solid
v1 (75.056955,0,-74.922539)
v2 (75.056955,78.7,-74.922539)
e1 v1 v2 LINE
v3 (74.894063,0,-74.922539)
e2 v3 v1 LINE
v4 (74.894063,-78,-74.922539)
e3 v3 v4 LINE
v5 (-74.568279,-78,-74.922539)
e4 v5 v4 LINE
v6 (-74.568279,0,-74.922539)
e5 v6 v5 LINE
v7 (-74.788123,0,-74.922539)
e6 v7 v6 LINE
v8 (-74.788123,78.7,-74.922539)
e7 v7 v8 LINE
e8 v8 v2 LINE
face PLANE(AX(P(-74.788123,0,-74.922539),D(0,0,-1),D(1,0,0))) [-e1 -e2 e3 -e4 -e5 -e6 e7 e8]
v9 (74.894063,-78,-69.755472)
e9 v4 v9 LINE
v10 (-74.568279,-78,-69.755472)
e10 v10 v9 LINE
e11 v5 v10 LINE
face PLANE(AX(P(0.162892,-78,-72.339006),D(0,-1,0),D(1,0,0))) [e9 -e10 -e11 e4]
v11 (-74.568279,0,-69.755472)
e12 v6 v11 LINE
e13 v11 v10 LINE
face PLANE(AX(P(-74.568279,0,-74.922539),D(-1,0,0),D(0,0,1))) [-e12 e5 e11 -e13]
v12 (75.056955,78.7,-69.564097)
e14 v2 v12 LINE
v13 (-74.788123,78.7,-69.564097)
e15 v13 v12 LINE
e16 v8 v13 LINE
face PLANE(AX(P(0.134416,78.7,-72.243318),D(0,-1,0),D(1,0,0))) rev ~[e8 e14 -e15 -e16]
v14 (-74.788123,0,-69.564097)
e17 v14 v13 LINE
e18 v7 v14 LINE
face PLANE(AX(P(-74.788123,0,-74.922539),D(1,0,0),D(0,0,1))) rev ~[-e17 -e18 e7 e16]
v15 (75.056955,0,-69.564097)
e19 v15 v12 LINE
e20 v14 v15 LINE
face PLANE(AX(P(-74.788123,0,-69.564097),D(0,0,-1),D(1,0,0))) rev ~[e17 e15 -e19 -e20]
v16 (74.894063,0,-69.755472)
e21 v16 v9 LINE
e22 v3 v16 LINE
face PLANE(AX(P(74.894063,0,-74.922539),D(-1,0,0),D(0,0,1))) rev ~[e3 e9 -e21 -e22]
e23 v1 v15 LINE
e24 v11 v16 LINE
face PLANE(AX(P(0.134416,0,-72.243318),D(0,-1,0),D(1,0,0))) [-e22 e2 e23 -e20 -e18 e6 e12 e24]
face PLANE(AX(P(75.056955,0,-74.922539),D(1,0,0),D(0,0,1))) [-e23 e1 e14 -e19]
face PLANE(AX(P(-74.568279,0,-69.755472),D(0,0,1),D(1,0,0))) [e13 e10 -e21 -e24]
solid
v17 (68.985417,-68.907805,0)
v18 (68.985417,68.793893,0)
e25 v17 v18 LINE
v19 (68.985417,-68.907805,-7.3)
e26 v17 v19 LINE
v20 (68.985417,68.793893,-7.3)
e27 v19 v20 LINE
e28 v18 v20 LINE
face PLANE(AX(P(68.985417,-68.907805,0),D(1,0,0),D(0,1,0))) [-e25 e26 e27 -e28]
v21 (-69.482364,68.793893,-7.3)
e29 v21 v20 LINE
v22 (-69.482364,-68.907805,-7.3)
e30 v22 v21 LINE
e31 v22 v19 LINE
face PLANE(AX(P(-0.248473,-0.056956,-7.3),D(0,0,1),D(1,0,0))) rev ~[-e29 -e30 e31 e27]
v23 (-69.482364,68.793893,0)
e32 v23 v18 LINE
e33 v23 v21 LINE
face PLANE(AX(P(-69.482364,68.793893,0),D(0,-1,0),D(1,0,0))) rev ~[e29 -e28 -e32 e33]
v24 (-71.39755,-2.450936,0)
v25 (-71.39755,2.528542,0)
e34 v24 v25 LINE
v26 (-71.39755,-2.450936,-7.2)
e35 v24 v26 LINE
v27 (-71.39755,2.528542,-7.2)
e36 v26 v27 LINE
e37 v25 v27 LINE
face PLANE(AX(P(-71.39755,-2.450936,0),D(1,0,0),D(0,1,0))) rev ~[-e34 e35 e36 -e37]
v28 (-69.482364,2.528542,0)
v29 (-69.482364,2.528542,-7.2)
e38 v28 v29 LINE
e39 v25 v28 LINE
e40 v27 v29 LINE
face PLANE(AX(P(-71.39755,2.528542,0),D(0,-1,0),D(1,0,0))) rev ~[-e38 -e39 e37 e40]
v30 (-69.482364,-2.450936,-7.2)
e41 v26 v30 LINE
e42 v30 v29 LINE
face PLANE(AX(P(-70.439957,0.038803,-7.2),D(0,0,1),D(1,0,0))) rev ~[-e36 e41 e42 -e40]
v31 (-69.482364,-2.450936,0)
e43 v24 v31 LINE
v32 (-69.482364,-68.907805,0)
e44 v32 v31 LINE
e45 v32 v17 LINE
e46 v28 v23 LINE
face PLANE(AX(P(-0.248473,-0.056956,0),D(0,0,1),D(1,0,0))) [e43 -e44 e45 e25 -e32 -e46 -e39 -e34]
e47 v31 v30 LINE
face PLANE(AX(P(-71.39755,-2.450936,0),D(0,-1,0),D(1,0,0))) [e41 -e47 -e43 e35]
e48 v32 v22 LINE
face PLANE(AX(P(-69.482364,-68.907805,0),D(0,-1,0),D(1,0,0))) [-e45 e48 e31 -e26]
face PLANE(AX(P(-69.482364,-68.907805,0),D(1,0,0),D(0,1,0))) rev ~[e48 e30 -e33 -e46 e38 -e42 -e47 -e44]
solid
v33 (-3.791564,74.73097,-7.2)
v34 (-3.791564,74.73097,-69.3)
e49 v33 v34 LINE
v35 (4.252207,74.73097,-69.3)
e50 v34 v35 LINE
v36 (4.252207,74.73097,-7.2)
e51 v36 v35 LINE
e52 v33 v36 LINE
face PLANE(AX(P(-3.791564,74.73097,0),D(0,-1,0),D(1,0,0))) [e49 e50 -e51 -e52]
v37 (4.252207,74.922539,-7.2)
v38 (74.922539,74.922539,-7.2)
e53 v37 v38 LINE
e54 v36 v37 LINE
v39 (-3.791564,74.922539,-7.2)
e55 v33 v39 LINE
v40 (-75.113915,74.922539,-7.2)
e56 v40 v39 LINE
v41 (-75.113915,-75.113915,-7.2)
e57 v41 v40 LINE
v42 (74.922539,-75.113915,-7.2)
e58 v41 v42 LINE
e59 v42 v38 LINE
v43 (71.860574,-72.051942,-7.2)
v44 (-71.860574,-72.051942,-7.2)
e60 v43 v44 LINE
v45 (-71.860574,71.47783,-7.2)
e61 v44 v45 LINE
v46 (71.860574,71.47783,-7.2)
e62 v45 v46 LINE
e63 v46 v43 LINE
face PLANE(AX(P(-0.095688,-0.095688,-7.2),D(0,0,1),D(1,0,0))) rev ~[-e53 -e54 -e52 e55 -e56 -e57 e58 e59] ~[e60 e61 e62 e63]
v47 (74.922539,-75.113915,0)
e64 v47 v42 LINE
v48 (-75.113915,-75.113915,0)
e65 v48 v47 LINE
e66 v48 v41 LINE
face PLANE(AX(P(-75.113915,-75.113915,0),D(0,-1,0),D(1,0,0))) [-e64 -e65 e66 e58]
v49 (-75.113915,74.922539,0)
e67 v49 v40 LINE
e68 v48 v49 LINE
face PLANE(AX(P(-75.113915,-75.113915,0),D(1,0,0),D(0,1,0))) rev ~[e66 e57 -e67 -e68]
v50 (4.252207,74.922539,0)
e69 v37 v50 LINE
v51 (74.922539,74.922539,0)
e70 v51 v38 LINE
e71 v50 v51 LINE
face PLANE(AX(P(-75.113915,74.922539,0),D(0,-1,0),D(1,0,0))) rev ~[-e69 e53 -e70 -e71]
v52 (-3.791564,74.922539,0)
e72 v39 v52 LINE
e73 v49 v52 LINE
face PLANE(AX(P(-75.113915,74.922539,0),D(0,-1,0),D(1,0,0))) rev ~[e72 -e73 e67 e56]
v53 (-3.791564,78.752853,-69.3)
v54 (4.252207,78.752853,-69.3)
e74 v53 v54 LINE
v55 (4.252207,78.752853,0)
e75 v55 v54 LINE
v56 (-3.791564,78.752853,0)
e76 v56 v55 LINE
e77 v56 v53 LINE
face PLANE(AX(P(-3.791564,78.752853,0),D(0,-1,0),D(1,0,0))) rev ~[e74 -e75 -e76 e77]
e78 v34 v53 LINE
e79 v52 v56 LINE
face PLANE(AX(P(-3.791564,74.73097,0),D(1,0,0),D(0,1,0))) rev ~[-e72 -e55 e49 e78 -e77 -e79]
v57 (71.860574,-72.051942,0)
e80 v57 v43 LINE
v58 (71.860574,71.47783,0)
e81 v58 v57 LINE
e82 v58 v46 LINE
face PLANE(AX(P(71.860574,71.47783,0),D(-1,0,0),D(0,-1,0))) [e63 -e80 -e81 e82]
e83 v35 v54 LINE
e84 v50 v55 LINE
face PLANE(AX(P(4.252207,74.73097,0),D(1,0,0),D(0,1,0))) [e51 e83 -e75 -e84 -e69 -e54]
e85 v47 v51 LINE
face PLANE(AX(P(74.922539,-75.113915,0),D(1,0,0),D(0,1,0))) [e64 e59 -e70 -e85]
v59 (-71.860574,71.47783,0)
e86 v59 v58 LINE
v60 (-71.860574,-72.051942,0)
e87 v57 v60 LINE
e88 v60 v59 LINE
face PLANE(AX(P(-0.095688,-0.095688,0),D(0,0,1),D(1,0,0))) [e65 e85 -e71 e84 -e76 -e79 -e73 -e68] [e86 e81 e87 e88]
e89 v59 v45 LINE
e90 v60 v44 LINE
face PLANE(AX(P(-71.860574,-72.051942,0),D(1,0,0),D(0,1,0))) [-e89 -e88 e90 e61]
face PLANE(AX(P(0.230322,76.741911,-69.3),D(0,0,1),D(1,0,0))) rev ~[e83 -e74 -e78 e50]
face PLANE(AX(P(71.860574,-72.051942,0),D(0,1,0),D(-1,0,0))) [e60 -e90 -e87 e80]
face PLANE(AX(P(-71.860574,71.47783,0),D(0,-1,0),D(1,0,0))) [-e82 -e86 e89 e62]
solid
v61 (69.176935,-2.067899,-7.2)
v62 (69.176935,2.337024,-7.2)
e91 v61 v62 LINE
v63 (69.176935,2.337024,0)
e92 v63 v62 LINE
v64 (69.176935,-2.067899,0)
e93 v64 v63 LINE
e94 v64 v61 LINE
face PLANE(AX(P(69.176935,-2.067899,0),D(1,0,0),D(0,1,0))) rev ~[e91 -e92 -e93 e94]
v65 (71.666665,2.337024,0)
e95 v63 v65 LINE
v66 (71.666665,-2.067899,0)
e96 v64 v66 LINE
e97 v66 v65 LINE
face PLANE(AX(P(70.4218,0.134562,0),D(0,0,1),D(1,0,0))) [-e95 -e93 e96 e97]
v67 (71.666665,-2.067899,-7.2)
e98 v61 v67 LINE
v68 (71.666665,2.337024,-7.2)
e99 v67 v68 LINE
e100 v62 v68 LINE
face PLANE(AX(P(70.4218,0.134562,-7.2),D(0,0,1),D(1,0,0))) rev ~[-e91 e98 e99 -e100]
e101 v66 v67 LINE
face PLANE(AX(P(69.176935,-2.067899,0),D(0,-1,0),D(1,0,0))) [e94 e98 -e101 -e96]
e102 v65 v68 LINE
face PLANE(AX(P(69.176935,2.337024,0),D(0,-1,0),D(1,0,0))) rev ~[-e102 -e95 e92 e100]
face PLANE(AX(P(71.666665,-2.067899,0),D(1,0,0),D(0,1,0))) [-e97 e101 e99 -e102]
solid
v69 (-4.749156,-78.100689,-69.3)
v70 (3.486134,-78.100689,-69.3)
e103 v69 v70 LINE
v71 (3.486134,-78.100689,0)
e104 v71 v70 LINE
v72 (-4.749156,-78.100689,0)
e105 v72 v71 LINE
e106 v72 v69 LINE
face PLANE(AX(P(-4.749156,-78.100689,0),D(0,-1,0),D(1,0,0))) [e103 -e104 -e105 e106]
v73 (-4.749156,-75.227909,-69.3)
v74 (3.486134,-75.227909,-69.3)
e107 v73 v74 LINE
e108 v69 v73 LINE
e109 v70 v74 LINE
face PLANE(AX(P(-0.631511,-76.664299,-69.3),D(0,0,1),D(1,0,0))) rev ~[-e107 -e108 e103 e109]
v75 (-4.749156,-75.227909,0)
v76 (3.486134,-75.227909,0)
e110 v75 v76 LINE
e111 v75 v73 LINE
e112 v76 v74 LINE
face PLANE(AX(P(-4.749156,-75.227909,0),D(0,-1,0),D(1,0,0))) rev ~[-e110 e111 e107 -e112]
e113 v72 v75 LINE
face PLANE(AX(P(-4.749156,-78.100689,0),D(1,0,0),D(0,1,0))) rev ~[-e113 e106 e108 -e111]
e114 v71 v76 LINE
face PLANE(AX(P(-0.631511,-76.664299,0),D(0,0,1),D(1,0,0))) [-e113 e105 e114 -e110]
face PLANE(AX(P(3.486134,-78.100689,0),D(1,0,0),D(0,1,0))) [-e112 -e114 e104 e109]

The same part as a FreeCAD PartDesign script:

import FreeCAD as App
import Part
import Sketcher
from FreeCAD import Vector
Q = App.Units.Quantity

doc = App.newDocument("Part")
body = doc.addObject("PartDesign::Body", "Body")

sketch1 = body.newObject("Sketcher::SketchObject", "Sketch")
sketch1.AttachmentSupport = (doc.getObject("XY_Plane"), [""])
sketch1.MapMode = "FlatFace"
sketch1.addGeometry(Part.LineSegment(Vector(-75, 75, 0), Vector(-75, -75, 0)), False)
sketch1.addGeometry(Part.LineSegment(Vector(-75, -75, 0), Vector(75, -75, 0)), False)
sketch1.addGeometry(Part.LineSegment(Vector(75, -75, 0), Vector(75, 75, 0)), False)
sketch1.addGeometry(Part.LineSegment(Vector(75, 75, 0), Vector(-75, 75, 0)), False)
sketch1.addGeometry(Part.LineSegment(Vector(72, -72, 0), Vector(-72, -72, 0)), False)
sketch1.addGeometry(Part.LineSegment(Vector(-72, -72, 0), Vector(-72, 71, 0)), False)
sketch1.addGeometry(Part.LineSegment(Vector(-72, 71, 0), Vector(72, 71, 0)), False)
sketch1.addGeometry(Part.LineSegment(Vector(72, 71, 0), Vector(72, -72, 0)), False)
sketch1.addConstraint(Sketcher.Constraint("Coincident", 0, 2, 1, 1))
sketch1.addConstraint(Sketcher.Constraint("Coincident", 1, 2, 2, 1))
sketch1.addConstraint(Sketcher.Constraint("Coincident", 2, 2, 3, 1))
sketch1.addConstraint(Sketcher.Constraint("Coincident", 3, 2, 0, 1))
sketch1.addConstraint(Sketcher.Constraint("Coincident", 4, 2, 5, 1))
sketch1.addConstraint(Sketcher.Constraint("Coincident", 5, 2, 6, 1))
sketch1.addConstraint(Sketcher.Constraint("Coincident", 6, 2, 7, 1))
sketch1.addConstraint(Sketcher.Constraint("Coincident", 7, 2, 4, 1))
sketch1.addConstraint(Sketcher.Constraint("Vertical", 0))
sketch1.addConstraint(Sketcher.Constraint("Horizontal", 1))
sketch1.addConstraint(Sketcher.Constraint("Vertical", 2))
sketch1.addConstraint(Sketcher.Constraint("Horizontal", 3))
sketch1.addConstraint(Sketcher.Constraint("Horizontal", 4))
sketch1.addConstraint(Sketcher.Constraint("Vertical", 5))
sketch1.addConstraint(Sketcher.Constraint("Horizontal", 6))
sketch1.addConstraint(Sketcher.Constraint("Vertical", 7))
sketch1.addConstraint(Sketcher.Constraint("Equal", 3, 0))
sketch1.addConstraint(Sketcher.Constraint("DistanceX", 4, 2, 4, 1, Q("143.721148 mm")))
sketch1.addConstraint(Sketcher.Constraint("DistanceX", 1, 1, 1, 2, Q("150.036454 mm")))
sketch1.addConstraint(Sketcher.Constraint("DistanceY", 5, 1, 5, 2, Q("143.529773 mm")))
sketch1.addConstraint(Sketcher.Constraint("DistanceX", -1, 1, 1, 2, Q("74.922539 mm")))
sketch1.addConstraint(Sketcher.Constraint("DistanceY", -1, 1, 2, 2, Q("74.922539 mm")))
sketch1.addConstraint(Sketcher.Constraint("DistanceY", -1, 1, 5, 2, Q("71.47783 mm")))
sketch1.addConstraint(Sketcher.Constraint("DistanceX", 0, 2, 4, 2, Q("3.253341 mm")))
pad1 = body.newObject("PartDesign::Pad", "Pad")
pad1.Profile = sketch1
pad1.Length = 7.2
pad1.Reversed = True

sketch2 = body.newObject("Sketcher::SketchObject", "Sketch001")
sketch2.AttachmentSupport = (doc.getObject("XY_Plane"), [""])
sketch2.MapMode = "FlatFace"
sketch2.addGeometry(Part.LineSegment(Vector(-3.8, 78.8, 0), Vector(-3.8, 74.7, 0)), False)
sketch2.addGeometry(Part.LineSegment(Vector(-3.8, 74.7, 0), Vector(4.3, 74.7, 0)), False)
sketch2.addGeometry(Part.LineSegment(Vector(4.3, 74.7, 0), Vector(4.3, 78.8, 0)), False)
sketch2.addGeometry(Part.LineSegment(Vector(4.3, 78.8, 0), Vector(-3.8, 78.8, 0)), False)
sketch2.addConstraint(Sketcher.Constraint("Coincident", 0, 2, 1, 1))
sketch2.addConstraint(Sketcher.Constraint("Coincident", 1, 2, 2, 1))
sketch2.addConstraint(Sketcher.Constraint("Coincident", 2, 2, 3, 1))
sketch2.addConstraint(Sketcher.Constraint("Coincident", 3, 2, 0, 1))
sketch2.addConstraint(Sketcher.Constraint("Vertical", 0))
sketch2.addConstraint(Sketcher.Constraint("Horizontal", 1))
sketch2.addConstraint(Sketcher.Constraint("Vertical", 2))
sketch2.addConstraint(Sketcher.Constraint("Horizontal", 3))
sketch2.addConstraint(Sketcher.Constraint("DistanceX", 1, 1, 1, 2, Q("8.043771 mm")))
sketch2.addConstraint(Sketcher.Constraint("DistanceY", 0, 2, 0, 1, Q("4.021883 mm")))
sketch2.addConstraint(Sketcher.Constraint("DistanceY", -1, 1, 0, 2, Q("74.73097 mm")))
sketch2.addConstraint(Sketcher.Constraint("DistanceX", 0, 2, -1, 1, Q("3.791564 mm")))
pad2 = body.newObject("PartDesign::Pad", "Pad001")
pad2.Profile = sketch2
pad2.Length = 69.3
pad2.Reversed = True
body2 = doc.addObject("PartDesign::Body", "Body001")

sketch3 = body2.newObject("Sketcher::SketchObject", "Sketch002")
sketch3.AttachmentSupport = (doc.getObject("XY_Plane001"), [""])
sketch3.MapMode = "FlatFace"
sketch3.addGeometry(Part.LineSegment(Vector(-69, 69, 0), Vector(-69, -69, 0)), False)
sketch3.addGeometry(Part.LineSegment(Vector(-69, -69, 0), Vector(69, -69, 0)), False)
sketch3.addGeometry(Part.LineSegment(Vector(69, -69, 0), Vector(69, 69, 0)), False)
sketch3.addGeometry(Part.LineSegment(Vector(69, 69, 0), Vector(-69, 69, 0)), False)
sketch3.addConstraint(Sketcher.Constraint("Coincident", 0, 2, 1, 1))
sketch3.addConstraint(Sketcher.Constraint("Coincident", 1, 2, 2, 1))
sketch3.addConstraint(Sketcher.Constraint("Coincident", 2, 2, 3, 1))
sketch3.addConstraint(Sketcher.Constraint("Coincident", 3, 2, 0, 1))
sketch3.addConstraint(Sketcher.Constraint("Vertical", 0))
sketch3.addConstraint(Sketcher.Constraint("Horizontal", 1))
sketch3.addConstraint(Sketcher.Constraint("Vertical", 2))
sketch3.addConstraint(Sketcher.Constraint("Horizontal", 3))
sketch3.addConstraint(Sketcher.Constraint("DistanceX", 1, 1, 1, 2, Q("138.467781 mm")))
sketch3.addConstraint(Sketcher.Constraint("DistanceY", 0, 2, 0, 1, Q("137.701698 mm")))
sketch3.addConstraint(Sketcher.Constraint("DistanceX", 0, 2, -1, 1, Q("69.482364 mm")))
sketch3.addConstraint(Sketcher.Constraint("DistanceY", 0, 2, -1, 1, Q("68.907805 mm")))
pad3 = body2.newObject("PartDesign::Pad", "Pad002")
pad3.Profile = sketch3
pad3.Length = 7.3
pad3.Reversed = True

sketch4 = body2.newObject("Sketcher::SketchObject", "Sketch003")
sketch4.AttachmentSupport = (doc.getObject("XY_Plane001"), [""])
sketch4.MapMode = "FlatFace"
sketch4.addGeometry(Part.LineSegment(Vector(-71.4, 2.5, 0), Vector(-71.4, -2.5, 0)), False)
sketch4.addGeometry(Part.LineSegment(Vector(-71.4, -2.5, 0), Vector(-69.5, -2.5, 0)), False)
sketch4.addGeometry(Part.LineSegment(Vector(-69.5, -2.5, 0), Vector(-69.5, 2.5, 0)), False)
sketch4.addGeometry(Part.LineSegment(Vector(-69.5, 2.5, 0), Vector(-71.4, 2.5, 0)), False)
sketch4.addConstraint(Sketcher.Constraint("Coincident", 0, 2, 1, 1))
sketch4.addConstraint(Sketcher.Constraint("Coincident", 1, 2, 2, 1))
sketch4.addConstraint(Sketcher.Constraint("Coincident", 2, 2, 3, 1))
sketch4.addConstraint(Sketcher.Constraint("Coincident", 3, 2, 0, 1))
sketch4.addConstraint(Sketcher.Constraint("Vertical", 0))
sketch4.addConstraint(Sketcher.Constraint("Horizontal", 1))
sketch4.addConstraint(Sketcher.Constraint("Vertical", 2))
sketch4.addConstraint(Sketcher.Constraint("Horizontal", 3))
sketch4.addConstraint(Sketcher.Constraint("DistanceX", 1, 1, 1, 2, Q("1.915187 mm")))
sketch4.addConstraint(Sketcher.Constraint("DistanceY", 0, 2, 0, 1, Q("4.979477 mm")))
sketch4.addConstraint(Sketcher.Constraint("DistanceX", 0, 2, -1, 1, Q("71.39755 mm")))
sketch4.addConstraint(Sketcher.Constraint("DistanceY", -1, 1, 2, 2, Q("2.528542 mm")))
pad4 = body2.newObject("PartDesign::Pad", "Pad003")
pad4.Profile = sketch4
pad4.Length = 7.2
pad4.Reversed = True
body3 = doc.addObject("PartDesign::Body", "Body002")

sketch5 = body3.newObject("Sketcher::SketchObject", "Sketch004")
sketch5.AttachmentSupport = (doc.getObject("XY_Plane002"), [""])
sketch5.MapMode = "FlatFace"
sketch5.addGeometry(Part.LineSegment(Vector(69.2, 2.3, 0), Vector(69.2, -2.1, 0)), False)
sketch5.addGeometry(Part.LineSegment(Vector(69.2, -2.1, 0), Vector(71.7, -2.1, 0)), False)
sketch5.addGeometry(Part.LineSegment(Vector(71.7, -2.1, 0), Vector(71.7, 2.3, 0)), False)
sketch5.addGeometry(Part.LineSegment(Vector(71.7, 2.3, 0), Vector(69.2, 2.3, 0)), False)
sketch5.addConstraint(Sketcher.Constraint("Coincident", 0, 2, 1, 1))
sketch5.addConstraint(Sketcher.Constraint("Coincident", 1, 2, 2, 1))
sketch5.addConstraint(Sketcher.Constraint("Coincident", 2, 2, 3, 1))
sketch5.addConstraint(Sketcher.Constraint("Coincident", 3, 2, 0, 1))
sketch5.addConstraint(Sketcher.Constraint("Vertical", 0))
sketch5.addConstraint(Sketcher.Constraint("Horizontal", 1))
sketch5.addConstraint(Sketcher.Constraint("Vertical", 2))
sketch5.addConstraint(Sketcher.Constraint("Horizontal", 3))
sketch5.addConstraint(Sketcher.Constraint("DistanceX", 1, 1, 1, 2, Q("2.489731 mm")))
sketch5.addConstraint(Sketcher.Constraint("DistanceY", 0, 2, -1, 1, Q("2.067899 mm")))
sketch5.addConstraint(Sketcher.Constraint("DistanceY", 0, 2, 0, 1, Q("4.404922 mm")))
sketch5.addConstraint(Sketcher.Constraint("DistanceX", -1, 1, 0, 2, Q("69.176935 mm")))
pad5 = body3.newObject("PartDesign::Pad", "Pad004")
pad5.Profile = sketch5
pad5.Length = 7.2
pad5.Reversed = True
body4 = doc.addObject("PartDesign::Body", "Body003")

sketch6 = body4.newObject("Sketcher::SketchObject", "Sketch005")
sketch6.AttachmentSupport = (doc.getObject("XY_Plane003"), [""])
sketch6.MapMode = "FlatFace"
sketch6.addGeometry(Part.LineSegment(Vector(-4.7, -75.2, 0), Vector(-4.7, -78.1, 0)), False)
sketch6.addGeometry(Part.LineSegment(Vector(-4.7, -78.1, 0), Vector(3.5, -78.1, 0)), False)
sketch6.addGeometry(Part.LineSegment(Vector(3.5, -78.1, 0), Vector(3.5, -75.2, 0)), False)
sketch6.addGeometry(Part.LineSegment(Vector(3.5, -75.2, 0), Vector(-4.7, -75.2, 0)), False)
sketch6.addConstraint(Sketcher.Constraint("Coincident", 0, 2, 1, 1))
sketch6.addConstraint(Sketcher.Constraint("Coincident", 1, 2, 2, 1))
sketch6.addConstraint(Sketcher.Constraint("Coincident", 2, 2, 3, 1))
sketch6.addConstraint(Sketcher.Constraint("Coincident", 3, 2, 0, 1))
sketch6.addConstraint(Sketcher.Constraint("Vertical", 0))
sketch6.addConstraint(Sketcher.Constraint("Horizontal", 1))
sketch6.addConstraint(Sketcher.Constraint("Vertical", 2))
sketch6.addConstraint(Sketcher.Constraint("Horizontal", 3))
sketch6.addConstraint(Sketcher.Constraint("DistanceX", 1, 1, 1, 2, Q("8.23529 mm")))
sketch6.addConstraint(Sketcher.Constraint("DistanceY", 0, 2, 0, 1, Q("2.87278 mm")))
sketch6.addConstraint(Sketcher.Constraint("DistanceY", 0, 2, -1, 1, Q("78.100689 mm")))
sketch6.addConstraint(Sketcher.Constraint("DistanceX", 0, 2, -1, 1, Q("4.749156 mm")))
pad6 = body4.newObject("PartDesign::Pad", "Pad005")
pad6.Profile = sketch6
pad6.Length = 69.3
pad6.Reversed = True
body5 = doc.addObject("PartDesign::Body", "Body004")

sketch7 = body5.newObject("Sketcher::SketchObject", "Sketch006")
sketch7.AttachmentSupport = (doc.getObject("XZ_Plane004"), [""])
sketch7.MapMode = "FlatFace"
sketch7.addGeometry(Part.LineSegment(Vector(-75, -70, 0), Vector(-75, -75, 0)), False)
sketch7.addGeometry(Part.LineSegment(Vector(-75, -75, 0), Vector(75, -75, 0)), False)
sketch7.addGeometry(Part.LineSegment(Vector(75, -75, 0), Vector(75, -70, 0)), False)
sketch7.addGeometry(Part.LineSegment(Vector(75, -70, 0), Vector(-75, -70, 0)), False)
sketch7.addConstraint(Sketcher.Constraint("Coincident", 0, 2, 1, 1))
sketch7.addConstraint(Sketcher.Constraint("Coincident", 1, 2, 2, 1))
sketch7.addConstraint(Sketcher.Constraint("Coincident", 2, 2, 3, 1))
sketch7.addConstraint(Sketcher.Constraint("Coincident", 3, 2, 0, 1))
sketch7.addConstraint(Sketcher.Constraint("Vertical", 0))
sketch7.addConstraint(Sketcher.Constraint("Horizontal", 1))
sketch7.addConstraint(Sketcher.Constraint("Vertical", 2))
sketch7.addConstraint(Sketcher.Constraint("Horizontal", 3))
sketch7.addConstraint(Sketcher.Constraint("DistanceX", 1, 1, 1, 2, Q("149.845079 mm")))
sketch7.addConstraint(Sketcher.Constraint("DistanceY", 0, 2, 0, 1, Q("5.358443 mm")))
sketch7.addConstraint(Sketcher.Constraint("DistanceY", 0, 2, -1, 1, Q("74.922539 mm")))
sketch7.addConstraint(Sketcher.Constraint("DistanceX", 0, 2, -1, 1, Q("74.788123 mm")))
pad7 = body5.newObject("PartDesign::Pad", "Pad006")
pad7.Profile = sketch7
pad7.Length = 78.7
pad7.Reversed = True

sketch8 = body5.newObject("Sketcher::SketchObject", "Sketch007")
sketch8.AttachmentSupport = (doc.getObject("XZ_Plane004"), [""])
sketch8.MapMode = "FlatFace"
sketch8.addGeometry(Part.LineSegment(Vector(-75, -70, 0), Vector(-75, -75, 0)), False)
sketch8.addGeometry(Part.LineSegment(Vector(-75, -75, 0), Vector(75, -75, 0)), False)
sketch8.addGeometry(Part.LineSegment(Vector(75, -75, 0), Vector(75, -70, 0)), False)
sketch8.addGeometry(Part.LineSegment(Vector(75, -70, 0), Vector(-75, -70, 0)), False)
sketch8.addConstraint(Sketcher.Constraint("Coincident", 0, 2, 1, 1))
sketch8.addConstraint(Sketcher.Constraint("Coincident", 1, 2, 2, 1))
sketch8.addConstraint(Sketcher.Constraint("Coincident", 2, 2, 3, 1))
sketch8.addConstraint(Sketcher.Constraint("Coincident", 3, 2, 0, 1))
sketch8.addConstraint(Sketcher.Constraint("Vertical", 0))
sketch8.addConstraint(Sketcher.Constraint("Horizontal", 1))
sketch8.addConstraint(Sketcher.Constraint("Vertical", 2))
sketch8.addConstraint(Sketcher.Constraint("Horizontal", 3))
sketch8.addConstraint(Sketcher.Constraint("DistanceX", 1, 1, 1, 2, Q("149.462342 mm")))
sketch8.addConstraint(Sketcher.Constraint("DistanceY", 0, 2, 0, 1, Q("5.167067 mm")))
sketch8.addConstraint(Sketcher.Constraint("DistanceX", 0, 2, -1, 1, Q("74.568279 mm")))
sketch8.addConstraint(Sketcher.Constraint("DistanceY", 0, 2, -1, 1, Q("74.922539 mm")))
pad8 = body5.newObject("PartDesign::Pad", "Pad007")
pad8.Profile = sketch8
pad8.Length = 78

doc.recompute()
